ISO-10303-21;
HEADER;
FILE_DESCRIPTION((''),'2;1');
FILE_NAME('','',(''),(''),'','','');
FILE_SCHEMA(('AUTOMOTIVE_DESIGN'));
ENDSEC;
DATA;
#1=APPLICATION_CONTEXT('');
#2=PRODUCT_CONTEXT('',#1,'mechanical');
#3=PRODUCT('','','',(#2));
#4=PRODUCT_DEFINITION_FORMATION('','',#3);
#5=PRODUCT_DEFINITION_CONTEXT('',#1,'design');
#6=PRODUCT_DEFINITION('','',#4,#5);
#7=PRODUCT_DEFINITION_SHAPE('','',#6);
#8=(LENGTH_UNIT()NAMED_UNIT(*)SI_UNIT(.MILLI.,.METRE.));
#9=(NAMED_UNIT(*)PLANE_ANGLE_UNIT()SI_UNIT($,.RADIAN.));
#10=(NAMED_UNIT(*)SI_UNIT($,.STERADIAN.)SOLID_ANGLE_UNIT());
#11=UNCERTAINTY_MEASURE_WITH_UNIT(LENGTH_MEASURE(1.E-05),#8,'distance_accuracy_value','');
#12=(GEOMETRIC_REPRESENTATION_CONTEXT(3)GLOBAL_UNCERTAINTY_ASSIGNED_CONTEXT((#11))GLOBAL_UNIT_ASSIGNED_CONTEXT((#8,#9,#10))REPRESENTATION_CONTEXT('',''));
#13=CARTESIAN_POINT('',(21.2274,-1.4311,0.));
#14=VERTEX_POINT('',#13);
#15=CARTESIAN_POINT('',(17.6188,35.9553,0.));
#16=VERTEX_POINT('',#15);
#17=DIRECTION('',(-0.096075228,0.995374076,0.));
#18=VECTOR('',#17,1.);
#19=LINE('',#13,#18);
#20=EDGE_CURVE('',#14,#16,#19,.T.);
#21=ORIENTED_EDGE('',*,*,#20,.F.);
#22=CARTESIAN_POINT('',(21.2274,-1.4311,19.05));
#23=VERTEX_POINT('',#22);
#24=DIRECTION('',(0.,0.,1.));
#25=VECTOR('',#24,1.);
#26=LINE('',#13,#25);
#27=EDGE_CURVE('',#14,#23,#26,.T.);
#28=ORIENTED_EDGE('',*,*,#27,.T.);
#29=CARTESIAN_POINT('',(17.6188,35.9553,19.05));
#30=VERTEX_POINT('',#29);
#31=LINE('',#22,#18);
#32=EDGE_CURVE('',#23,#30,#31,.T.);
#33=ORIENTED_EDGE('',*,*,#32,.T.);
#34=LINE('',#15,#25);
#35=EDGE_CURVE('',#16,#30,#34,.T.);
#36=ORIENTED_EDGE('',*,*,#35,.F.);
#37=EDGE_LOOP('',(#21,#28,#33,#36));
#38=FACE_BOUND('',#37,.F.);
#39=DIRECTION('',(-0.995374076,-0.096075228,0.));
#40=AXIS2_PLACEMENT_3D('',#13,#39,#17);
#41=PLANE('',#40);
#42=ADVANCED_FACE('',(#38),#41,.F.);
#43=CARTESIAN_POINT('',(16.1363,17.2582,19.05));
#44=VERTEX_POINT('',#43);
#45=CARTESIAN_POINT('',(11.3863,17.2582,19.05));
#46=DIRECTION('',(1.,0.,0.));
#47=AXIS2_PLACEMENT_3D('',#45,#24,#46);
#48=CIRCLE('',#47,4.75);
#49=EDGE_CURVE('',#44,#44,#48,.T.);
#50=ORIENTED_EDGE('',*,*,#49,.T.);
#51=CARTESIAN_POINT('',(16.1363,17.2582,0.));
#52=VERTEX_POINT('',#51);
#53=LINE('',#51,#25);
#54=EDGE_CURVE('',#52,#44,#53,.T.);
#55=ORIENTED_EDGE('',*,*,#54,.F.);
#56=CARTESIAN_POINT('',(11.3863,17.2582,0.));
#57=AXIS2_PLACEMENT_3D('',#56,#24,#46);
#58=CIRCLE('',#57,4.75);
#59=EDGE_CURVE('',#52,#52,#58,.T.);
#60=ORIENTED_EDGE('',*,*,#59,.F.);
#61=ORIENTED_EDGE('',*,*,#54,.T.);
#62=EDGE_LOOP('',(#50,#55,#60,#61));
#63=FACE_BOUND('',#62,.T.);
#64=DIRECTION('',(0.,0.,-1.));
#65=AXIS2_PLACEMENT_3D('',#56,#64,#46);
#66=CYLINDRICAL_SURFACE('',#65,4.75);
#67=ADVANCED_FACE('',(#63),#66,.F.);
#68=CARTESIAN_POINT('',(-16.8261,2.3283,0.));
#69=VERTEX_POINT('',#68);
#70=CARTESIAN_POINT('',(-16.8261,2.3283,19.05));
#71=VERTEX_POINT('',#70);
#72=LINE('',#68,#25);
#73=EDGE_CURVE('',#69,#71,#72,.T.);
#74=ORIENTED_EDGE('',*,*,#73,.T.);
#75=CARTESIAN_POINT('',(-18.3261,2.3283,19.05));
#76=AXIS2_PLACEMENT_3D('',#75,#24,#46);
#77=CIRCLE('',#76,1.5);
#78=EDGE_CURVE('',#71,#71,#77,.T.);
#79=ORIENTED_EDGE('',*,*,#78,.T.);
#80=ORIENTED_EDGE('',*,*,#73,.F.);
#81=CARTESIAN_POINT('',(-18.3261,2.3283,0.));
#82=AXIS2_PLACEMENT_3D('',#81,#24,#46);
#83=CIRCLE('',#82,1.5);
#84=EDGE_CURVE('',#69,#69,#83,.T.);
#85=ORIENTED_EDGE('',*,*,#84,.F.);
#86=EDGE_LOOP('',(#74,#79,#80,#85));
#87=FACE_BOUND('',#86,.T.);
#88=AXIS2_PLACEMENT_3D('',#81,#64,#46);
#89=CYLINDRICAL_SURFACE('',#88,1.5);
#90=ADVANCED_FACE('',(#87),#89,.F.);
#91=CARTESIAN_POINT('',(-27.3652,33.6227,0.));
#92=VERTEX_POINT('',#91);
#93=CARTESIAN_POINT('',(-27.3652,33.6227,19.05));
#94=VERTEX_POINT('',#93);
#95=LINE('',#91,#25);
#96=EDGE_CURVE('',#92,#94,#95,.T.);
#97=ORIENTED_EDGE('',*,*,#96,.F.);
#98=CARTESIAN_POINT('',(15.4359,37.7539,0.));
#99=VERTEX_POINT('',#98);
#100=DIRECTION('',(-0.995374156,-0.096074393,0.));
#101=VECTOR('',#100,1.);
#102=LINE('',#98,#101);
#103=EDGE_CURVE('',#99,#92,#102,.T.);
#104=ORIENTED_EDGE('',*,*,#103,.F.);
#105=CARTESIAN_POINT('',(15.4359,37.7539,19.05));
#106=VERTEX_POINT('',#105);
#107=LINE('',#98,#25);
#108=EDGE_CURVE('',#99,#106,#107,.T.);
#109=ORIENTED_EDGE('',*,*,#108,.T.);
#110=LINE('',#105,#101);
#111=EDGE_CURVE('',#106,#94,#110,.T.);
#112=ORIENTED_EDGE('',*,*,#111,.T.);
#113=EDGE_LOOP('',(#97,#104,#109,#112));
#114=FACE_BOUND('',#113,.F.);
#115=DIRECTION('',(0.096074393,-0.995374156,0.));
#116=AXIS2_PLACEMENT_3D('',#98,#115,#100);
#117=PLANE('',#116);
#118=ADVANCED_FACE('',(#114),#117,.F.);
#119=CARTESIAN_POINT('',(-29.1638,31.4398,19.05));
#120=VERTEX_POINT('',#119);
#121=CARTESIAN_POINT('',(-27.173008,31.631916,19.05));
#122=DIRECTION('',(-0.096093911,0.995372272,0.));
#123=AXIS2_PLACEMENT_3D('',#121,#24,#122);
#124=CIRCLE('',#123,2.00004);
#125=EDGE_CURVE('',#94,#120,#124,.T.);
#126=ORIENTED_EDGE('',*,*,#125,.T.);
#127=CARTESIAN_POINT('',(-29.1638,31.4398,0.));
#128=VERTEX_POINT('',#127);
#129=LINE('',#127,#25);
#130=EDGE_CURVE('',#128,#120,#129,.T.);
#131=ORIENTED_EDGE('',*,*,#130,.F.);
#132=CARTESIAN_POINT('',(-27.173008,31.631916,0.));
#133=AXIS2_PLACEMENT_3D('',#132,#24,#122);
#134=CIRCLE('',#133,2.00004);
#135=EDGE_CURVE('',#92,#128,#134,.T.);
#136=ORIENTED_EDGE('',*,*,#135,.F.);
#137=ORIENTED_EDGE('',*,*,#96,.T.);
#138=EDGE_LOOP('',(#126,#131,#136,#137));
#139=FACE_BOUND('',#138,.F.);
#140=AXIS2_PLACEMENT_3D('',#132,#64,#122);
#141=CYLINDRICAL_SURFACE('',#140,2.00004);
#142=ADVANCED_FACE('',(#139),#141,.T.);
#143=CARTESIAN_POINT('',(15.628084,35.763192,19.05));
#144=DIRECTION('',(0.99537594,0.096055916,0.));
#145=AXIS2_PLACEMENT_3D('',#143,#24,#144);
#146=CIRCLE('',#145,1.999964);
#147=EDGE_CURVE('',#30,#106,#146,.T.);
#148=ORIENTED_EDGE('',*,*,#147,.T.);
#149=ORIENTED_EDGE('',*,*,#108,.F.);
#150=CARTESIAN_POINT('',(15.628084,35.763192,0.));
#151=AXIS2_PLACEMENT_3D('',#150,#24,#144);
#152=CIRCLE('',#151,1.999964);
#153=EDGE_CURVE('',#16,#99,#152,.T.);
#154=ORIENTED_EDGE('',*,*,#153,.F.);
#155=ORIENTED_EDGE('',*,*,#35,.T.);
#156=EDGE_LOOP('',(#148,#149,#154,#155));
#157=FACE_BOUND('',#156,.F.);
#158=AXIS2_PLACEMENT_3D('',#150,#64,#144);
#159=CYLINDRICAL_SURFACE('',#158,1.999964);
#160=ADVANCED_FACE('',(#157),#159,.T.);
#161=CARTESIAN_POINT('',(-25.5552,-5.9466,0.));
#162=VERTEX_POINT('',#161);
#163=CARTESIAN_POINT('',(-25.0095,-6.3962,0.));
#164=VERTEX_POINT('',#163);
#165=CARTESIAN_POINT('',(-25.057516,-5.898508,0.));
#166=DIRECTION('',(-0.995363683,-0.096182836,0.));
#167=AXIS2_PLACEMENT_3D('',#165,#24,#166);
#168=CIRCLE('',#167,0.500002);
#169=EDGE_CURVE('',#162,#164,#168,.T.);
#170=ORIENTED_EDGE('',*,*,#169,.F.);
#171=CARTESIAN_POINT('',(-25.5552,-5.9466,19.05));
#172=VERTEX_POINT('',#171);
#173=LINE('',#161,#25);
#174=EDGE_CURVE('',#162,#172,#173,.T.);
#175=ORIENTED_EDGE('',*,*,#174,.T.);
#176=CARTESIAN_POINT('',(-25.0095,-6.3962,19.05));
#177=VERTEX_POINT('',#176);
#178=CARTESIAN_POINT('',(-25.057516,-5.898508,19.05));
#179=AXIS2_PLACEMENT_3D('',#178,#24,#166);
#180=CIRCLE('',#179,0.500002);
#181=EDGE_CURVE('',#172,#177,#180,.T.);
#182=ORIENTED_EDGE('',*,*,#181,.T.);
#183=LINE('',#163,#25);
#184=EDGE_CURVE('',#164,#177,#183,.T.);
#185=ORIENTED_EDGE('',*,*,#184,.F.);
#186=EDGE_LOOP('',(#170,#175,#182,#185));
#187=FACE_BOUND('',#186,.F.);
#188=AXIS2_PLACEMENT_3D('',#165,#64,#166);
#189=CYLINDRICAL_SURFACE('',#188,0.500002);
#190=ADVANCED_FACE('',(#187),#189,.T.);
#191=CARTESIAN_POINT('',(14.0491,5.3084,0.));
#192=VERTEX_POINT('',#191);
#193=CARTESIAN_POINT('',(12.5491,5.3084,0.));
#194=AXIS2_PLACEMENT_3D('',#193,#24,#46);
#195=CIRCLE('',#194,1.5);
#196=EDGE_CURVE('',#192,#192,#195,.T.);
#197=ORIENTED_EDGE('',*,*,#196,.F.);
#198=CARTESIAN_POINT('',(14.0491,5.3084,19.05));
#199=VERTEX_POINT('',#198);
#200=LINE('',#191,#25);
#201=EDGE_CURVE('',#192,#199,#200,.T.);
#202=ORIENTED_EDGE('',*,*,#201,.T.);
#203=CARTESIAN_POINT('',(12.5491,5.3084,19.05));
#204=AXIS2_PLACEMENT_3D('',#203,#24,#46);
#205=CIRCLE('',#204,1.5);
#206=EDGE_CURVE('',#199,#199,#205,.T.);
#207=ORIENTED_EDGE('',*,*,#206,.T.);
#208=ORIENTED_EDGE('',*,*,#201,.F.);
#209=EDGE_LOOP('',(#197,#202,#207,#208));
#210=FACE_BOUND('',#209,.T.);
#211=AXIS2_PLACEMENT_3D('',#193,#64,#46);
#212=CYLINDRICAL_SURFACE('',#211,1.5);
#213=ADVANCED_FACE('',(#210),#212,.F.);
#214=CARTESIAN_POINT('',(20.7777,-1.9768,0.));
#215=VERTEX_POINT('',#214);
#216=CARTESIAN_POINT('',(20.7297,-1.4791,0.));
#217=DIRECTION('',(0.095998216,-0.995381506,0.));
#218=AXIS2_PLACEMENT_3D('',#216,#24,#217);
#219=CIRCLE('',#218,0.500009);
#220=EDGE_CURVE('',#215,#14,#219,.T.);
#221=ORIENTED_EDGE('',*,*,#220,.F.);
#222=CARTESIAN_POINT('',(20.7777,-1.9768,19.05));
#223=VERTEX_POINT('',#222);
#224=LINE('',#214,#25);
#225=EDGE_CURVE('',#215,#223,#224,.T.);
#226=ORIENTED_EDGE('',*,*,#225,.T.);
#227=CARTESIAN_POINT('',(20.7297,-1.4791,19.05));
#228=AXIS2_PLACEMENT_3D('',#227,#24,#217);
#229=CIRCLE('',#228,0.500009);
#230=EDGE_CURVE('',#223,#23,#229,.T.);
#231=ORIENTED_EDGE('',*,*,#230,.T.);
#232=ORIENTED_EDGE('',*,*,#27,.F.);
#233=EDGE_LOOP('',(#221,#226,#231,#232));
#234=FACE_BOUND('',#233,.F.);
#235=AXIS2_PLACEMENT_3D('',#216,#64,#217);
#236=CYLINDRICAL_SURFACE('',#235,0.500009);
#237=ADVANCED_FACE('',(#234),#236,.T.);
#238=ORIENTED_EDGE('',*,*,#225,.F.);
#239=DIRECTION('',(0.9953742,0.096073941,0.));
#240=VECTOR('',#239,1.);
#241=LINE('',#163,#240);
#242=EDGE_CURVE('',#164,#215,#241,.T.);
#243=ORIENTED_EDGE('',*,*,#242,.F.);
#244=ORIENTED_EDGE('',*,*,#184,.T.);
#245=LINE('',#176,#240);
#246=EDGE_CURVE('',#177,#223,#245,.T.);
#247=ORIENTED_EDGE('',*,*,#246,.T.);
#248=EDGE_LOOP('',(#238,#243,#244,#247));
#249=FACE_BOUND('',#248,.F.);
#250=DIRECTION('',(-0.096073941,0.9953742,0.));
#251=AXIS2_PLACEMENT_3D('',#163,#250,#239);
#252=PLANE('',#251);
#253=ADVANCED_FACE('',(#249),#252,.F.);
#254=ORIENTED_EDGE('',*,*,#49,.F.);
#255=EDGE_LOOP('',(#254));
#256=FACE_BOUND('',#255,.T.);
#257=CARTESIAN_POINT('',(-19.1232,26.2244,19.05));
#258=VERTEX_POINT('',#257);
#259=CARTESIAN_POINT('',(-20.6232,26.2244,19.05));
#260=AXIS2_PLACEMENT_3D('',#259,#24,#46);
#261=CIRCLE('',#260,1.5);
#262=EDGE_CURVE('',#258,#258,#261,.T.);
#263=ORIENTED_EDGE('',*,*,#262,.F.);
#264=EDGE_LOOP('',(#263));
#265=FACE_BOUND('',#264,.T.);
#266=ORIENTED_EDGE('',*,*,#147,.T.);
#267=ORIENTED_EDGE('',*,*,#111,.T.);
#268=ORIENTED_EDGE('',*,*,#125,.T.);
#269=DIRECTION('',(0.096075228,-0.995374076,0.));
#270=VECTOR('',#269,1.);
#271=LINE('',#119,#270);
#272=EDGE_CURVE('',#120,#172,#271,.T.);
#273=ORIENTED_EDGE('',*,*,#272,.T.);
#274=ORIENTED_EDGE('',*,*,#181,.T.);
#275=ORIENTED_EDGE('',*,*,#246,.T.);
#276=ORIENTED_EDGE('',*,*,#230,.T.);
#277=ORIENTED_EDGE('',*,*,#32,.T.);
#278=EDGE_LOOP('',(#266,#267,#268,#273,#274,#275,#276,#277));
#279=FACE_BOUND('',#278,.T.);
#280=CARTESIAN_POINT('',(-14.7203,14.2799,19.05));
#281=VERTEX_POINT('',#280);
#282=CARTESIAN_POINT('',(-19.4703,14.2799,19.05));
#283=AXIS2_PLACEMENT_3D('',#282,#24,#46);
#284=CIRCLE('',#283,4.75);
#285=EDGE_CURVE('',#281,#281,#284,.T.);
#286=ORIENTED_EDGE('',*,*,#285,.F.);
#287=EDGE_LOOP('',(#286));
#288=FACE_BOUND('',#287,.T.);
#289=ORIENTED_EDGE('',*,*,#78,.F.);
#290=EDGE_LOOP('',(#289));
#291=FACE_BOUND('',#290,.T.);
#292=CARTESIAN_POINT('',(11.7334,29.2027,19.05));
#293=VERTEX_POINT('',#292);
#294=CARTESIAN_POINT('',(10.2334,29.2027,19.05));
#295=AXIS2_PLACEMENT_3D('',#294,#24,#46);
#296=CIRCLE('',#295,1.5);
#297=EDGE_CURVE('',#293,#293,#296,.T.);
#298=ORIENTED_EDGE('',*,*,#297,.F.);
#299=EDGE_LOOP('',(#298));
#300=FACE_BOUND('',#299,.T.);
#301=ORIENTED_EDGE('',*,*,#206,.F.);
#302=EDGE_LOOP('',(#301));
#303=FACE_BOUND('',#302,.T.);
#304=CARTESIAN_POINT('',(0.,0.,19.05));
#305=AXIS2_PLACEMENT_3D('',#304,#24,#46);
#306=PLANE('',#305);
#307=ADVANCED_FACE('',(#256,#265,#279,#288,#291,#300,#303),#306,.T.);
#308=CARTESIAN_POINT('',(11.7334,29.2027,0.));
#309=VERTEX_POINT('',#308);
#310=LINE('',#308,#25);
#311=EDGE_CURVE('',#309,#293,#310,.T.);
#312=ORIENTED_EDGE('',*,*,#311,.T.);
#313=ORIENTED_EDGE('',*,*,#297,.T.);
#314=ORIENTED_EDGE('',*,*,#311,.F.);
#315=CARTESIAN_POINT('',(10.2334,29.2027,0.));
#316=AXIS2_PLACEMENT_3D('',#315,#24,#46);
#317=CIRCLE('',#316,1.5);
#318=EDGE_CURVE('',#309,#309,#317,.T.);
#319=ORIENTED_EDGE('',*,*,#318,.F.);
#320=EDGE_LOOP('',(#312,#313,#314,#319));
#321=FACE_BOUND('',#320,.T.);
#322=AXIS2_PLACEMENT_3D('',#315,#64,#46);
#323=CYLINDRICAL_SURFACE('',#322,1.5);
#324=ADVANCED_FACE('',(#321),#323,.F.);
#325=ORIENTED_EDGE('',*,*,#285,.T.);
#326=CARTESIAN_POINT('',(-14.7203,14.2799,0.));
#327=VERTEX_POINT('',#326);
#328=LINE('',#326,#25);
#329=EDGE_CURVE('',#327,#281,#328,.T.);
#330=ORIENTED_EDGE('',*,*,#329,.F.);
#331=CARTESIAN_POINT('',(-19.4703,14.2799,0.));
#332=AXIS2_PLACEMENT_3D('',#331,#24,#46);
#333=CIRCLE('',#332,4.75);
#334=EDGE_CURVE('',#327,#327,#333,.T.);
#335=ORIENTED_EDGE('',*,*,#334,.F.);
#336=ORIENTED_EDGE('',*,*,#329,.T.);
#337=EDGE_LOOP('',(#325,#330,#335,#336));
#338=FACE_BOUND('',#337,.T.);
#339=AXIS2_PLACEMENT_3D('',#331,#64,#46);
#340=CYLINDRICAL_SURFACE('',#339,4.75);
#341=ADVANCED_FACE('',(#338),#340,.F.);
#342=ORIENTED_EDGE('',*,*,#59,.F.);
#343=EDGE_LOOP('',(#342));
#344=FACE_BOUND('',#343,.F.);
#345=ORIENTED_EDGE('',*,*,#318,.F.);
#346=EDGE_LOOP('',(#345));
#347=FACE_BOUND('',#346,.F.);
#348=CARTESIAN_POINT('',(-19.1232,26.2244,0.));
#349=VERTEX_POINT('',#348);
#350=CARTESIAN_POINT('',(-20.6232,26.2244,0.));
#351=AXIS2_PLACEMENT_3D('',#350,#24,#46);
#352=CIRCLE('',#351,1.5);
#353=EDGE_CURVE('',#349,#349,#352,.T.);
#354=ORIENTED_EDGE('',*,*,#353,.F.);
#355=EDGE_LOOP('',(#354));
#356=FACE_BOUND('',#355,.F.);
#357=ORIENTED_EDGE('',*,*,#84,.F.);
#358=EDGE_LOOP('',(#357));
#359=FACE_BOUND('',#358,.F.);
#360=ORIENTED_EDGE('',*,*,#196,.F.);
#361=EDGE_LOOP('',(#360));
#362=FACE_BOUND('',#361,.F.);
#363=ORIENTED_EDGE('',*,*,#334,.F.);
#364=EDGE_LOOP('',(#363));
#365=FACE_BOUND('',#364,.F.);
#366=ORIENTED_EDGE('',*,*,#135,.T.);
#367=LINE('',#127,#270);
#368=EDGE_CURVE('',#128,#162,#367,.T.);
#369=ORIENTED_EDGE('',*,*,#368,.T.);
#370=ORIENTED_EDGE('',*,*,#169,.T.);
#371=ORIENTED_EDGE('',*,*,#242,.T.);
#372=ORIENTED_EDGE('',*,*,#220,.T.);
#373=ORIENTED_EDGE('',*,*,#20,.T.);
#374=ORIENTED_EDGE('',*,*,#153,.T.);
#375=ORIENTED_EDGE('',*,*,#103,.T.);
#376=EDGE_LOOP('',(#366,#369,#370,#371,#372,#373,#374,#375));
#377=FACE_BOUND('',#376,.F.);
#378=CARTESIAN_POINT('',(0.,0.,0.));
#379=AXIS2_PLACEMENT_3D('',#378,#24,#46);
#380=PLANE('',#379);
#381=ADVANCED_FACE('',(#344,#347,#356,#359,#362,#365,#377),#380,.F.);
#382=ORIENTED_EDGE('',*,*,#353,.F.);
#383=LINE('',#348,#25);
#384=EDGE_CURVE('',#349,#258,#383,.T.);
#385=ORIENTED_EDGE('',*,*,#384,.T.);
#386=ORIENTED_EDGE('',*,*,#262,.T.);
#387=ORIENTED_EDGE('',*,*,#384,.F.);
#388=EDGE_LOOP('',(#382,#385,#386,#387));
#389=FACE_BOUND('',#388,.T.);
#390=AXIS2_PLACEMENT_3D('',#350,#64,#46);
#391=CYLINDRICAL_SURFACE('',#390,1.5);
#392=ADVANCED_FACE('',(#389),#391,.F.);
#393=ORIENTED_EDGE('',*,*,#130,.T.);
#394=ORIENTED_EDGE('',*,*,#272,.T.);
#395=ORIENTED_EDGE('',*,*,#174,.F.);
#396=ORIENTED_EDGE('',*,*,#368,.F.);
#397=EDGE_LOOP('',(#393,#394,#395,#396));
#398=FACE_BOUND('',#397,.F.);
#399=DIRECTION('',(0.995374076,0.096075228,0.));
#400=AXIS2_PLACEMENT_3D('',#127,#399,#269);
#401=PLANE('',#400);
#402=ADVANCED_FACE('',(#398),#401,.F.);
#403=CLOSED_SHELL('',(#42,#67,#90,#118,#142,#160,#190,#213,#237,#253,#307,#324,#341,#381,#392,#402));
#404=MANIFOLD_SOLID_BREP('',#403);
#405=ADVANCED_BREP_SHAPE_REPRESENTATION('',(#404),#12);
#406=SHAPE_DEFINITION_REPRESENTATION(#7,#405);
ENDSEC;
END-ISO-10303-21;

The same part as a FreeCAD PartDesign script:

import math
import FreeCAD as App
import Part
import Sketcher

V = App.Vector

doc = App.newDocument("Part")
body = doc.addObject("PartDesign::Body", "Body")

# Sketch on XY plane
sketch1 = doc.addObject("Sketcher::SketchObject", "Sketch")
body.addObject(sketch1)
sketch1.AttachmentSupport = (doc.XY_Plane, [""])
sketch1.MapMode = "FlatFace"
sketch1.addGeometry([
    Part.LineSegment(V(21.2, -1.4, 0), V(17.6, 36, 0)),  # 0
    Part.ArcOfCircle(Part.Circle(V(15.6, 35.8, 0), V(0, 0, 1), 2), math.radians(6), math.radians(96)),  # 1
    Part.LineSegment(V(15.4, 37.8, 0), V(-27.4, 33.6, 0)),  # 2
    Part.ArcOfCircle(Part.Circle(V(-27.2, 31.6, 0), V(0, 0, 1), 2), math.radians(96), math.radians(186)),  # 3
    Part.LineSegment(V(-29.2, 31.4, 0), V(-25.6, -5.9, 0)),  # 4
    Part.ArcOfCircle(Part.Circle(V(-25.1, -5.9, 0), V(0, 0, 1), 0.5), math.radians(-174), math.radians(-84)),  # 5
    Part.LineSegment(V(-25, -6.4, 0), V(20.8, -2, 0)),  # 6
    Part.ArcOfCircle(Part.Circle(V(20.7, -1.5, 0), V(0, 0, 1), 0.5), math.radians(-84), math.radians(6)),  # 7
    Part.Circle(V(-18.3, 2.3, 0), V(0, 0, 1), 1.5),  # 8
    Part.Circle(V(-19.5, 14.3, 0), V(0, 0, 1), 4.8),  # 9
    Part.Circle(V(12.5, 5.3, 0), V(0, 0, 1), 1.5),  # 10
    Part.Circle(V(-20.6, 26.2, 0), V(0, 0, 1), 1.5),  # 11
    Part.Circle(V(11.4, 17.3, 0), V(0, 0, 1), 4.8),  # 12
    Part.Circle(V(10.2, 29.2, 0), V(0, 0, 1), 1.5),  # 13
], False)
sketch1.addConstraint([
    Sketcher.Constraint("Tangent", 0, 2, 1, 1),
    Sketcher.Constraint("Tangent", 1, 2, 2, 1),
    Sketcher.Constraint("Tangent", 2, 2, 3, 1),
    Sketcher.Constraint("Tangent", 3, 2, 4, 1),
    Sketcher.Constraint("Tangent", 4, 2, 5, 1),
    Sketcher.Constraint("Tangent", 5, 2, 6, 1),
    Sketcher.Constraint("Tangent", 6, 2, 7, 1),
    Sketcher.Constraint("Tangent", 7, 2, 0, 1),
    Sketcher.Constraint("Equal", 1, 3),
    Sketcher.Constraint("Equal", 5, 7),
    Sketcher.Constraint("Equal", 8, 10),
    Sketcher.Constraint("Equal", 10, 11),
    Sketcher.Constraint("Equal", 9, 12),
    Sketcher.Constraint("Equal", 11, 13),
    Sketcher.Constraint("Perpendicular", 0, 2),
    Sketcher.Constraint("Perpendicular", 2, 4),
    Sketcher.Constraint("Perpendicular", 4, 6),
    Sketcher.Constraint("Diameter", 8, 3.0),
    Sketcher.Constraint("Radius", 1, 2.0),
    Sketcher.Constraint("Diameter", 9, 9.5),
    Sketcher.Constraint("Radius", 5, 0.5),
    Sketcher.Constraint("Distance", 2, 43.0),
    Sketcher.Constraint("DistanceX", 9, 3, 7, 3, 40.2),
    Sketcher.Constraint("DistanceY", -1, 1, 9, 3, 14.28),
    Sketcher.Constraint("DistanceY", 8, 3, 10, 3, 2.98),
    Sketcher.Constraint("DistanceY", 13, 3, 2, 2, 4.42),
    Sketcher.Constraint("DistanceY", 9, 3, 3, 2, 17.16),
    Sketcher.Constraint("DistanceX", -1, 1, 1, 3, 15.628),
    Sketcher.Constraint("DistanceX", 3, 3, -1, 1, 27.173),
    Sketcher.Constraint("DistanceY", 7, 3, -1, 1, 1.479),
    Sketcher.Constraint("DistanceX", 8, 3, -1, 1, 18.326),
    Sketcher.Constraint("DistanceX", -1, 1, 10, 3, 12.549),
    Sketcher.Constraint("DistanceY", 8, 3, 1, 3, 33.435),
    Sketcher.Constraint("DistanceX", 11, 3, 9, 3, 1.153),
    Sketcher.Constraint("DistanceY", 8, 3, 11, 3, 23.896),
    Sketcher.Constraint("DistanceY", 12, 3, 1, 3, 18.505),
    Sketcher.Constraint("DistanceX", 13, 3, 12, 3, 1.153),
    Sketcher.Constraint("DistanceX", 12, 3, 7, 2, 9.841),
])
pad1 = doc.addObject("PartDesign::Pad", "Pad")
body.addObject(pad1)
pad1.Profile = sketch1
pad1.Length = 19.05

doc.recompute()
